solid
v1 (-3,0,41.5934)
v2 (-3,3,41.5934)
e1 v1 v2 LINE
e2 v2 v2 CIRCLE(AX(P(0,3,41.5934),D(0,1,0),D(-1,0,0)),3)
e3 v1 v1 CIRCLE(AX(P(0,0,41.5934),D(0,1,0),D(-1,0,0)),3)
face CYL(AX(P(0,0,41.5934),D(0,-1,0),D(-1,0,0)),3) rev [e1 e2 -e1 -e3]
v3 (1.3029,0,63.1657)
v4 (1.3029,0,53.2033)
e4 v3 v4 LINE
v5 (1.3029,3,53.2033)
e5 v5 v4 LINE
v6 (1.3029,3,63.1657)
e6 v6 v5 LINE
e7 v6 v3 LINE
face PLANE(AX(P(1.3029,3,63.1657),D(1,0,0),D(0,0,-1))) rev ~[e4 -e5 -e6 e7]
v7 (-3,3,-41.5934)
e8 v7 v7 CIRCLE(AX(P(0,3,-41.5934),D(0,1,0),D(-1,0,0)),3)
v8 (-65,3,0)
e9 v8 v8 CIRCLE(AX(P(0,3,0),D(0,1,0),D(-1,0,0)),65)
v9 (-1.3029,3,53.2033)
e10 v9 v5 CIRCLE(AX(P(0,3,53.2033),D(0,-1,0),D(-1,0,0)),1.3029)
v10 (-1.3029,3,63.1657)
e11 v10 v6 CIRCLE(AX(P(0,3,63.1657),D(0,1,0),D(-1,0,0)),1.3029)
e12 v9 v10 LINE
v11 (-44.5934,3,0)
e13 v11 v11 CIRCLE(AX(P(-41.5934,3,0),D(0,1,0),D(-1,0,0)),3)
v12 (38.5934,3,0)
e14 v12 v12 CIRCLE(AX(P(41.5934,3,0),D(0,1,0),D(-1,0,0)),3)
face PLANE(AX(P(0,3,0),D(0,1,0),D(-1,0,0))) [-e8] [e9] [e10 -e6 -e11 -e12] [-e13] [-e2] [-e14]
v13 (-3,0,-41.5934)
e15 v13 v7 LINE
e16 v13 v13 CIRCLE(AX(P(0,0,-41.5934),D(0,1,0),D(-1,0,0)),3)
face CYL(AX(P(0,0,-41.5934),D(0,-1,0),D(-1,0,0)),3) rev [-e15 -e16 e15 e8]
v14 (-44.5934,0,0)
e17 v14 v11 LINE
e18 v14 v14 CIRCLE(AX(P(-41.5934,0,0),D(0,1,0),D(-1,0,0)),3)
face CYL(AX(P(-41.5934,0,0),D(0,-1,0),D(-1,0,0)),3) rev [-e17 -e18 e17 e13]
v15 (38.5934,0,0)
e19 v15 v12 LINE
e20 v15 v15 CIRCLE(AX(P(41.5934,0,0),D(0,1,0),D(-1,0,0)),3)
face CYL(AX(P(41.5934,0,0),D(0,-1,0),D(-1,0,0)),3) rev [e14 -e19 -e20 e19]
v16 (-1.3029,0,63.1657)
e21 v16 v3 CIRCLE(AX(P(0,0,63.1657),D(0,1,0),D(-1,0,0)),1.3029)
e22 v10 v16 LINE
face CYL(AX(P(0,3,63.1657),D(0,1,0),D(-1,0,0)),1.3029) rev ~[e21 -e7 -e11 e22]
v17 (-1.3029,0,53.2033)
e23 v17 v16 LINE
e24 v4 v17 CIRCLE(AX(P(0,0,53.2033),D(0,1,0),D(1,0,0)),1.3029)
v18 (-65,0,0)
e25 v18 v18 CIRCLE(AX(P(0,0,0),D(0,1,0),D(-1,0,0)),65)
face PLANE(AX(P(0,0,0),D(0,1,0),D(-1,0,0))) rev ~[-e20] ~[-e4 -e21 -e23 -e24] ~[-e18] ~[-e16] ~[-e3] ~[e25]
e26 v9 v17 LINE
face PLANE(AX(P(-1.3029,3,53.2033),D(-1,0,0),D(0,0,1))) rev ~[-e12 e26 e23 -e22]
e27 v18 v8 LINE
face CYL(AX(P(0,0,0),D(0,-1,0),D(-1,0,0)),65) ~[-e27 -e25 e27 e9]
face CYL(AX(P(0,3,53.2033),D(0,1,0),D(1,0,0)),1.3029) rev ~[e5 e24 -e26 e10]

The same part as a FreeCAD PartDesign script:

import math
import FreeCAD as App
import Part
import Sketcher
Q = App.Units.Quantity

doc = App.newDocument("Part")
body = doc.addObject("PartDesign::Body", "Body")

sketch1 = body.newObject("Sketcher::SketchObject", "Sketch")
sketch1.AttachmentSupport = (doc.getObject("XZ_Plane"), [""])
sketch1.MapMode = "FlatFace"
sketch1.addGeometry(Part.Circle(App.Vector(0, 0, 0), App.Vector(0, 0, 1), 65), False)
sketch1.addGeometry(Part.Circle(App.Vector(0, -41.5934, 0), App.Vector(0, 0, 1), 3), False)
sketch1.addGeometry(Part.Circle(App.Vector(41.5934, 0, 0), App.Vector(0, 0, 1), 3), False)
sketch1.addGeometry(Part.Circle(App.Vector(-41.5934, 0, 0), App.Vector(0, 0, 1), 3), False)
sketch1.addGeometry(Part.Circle(App.Vector(0, 41.5934, 0), App.Vector(0, 0, 1), 3), False)
sketch1.addConstraint(Sketcher.Constraint("Coincident", 0, 3, -1, 1))
sketch1.addConstraint(Sketcher.Constraint("Equal", 1, 2))
sketch1.addConstraint(Sketcher.Constraint("Equal", 2, 3))
sketch1.addConstraint(Sketcher.Constraint("Equal", 3, 4))
sketch1.addConstraint(Sketcher.Constraint("Symmetric", 2, 3, 3, 3, -1, 1))
sketch1.addConstraint(Sketcher.Constraint("Symmetric", 1, 3, 4, 3, -1, 1))
sketch1.addConstraint(Sketcher.Constraint("PointOnObject", 1, 3, -2))
sketch1.addConstraint(Sketcher.Constraint("PointOnObject", 2, 3, -1))
sketch1.addConstraint(Sketcher.Constraint("Diameter", 0, Q("130 mm")))
sketch1.addConstraint(Sketcher.Constraint("Diameter", 1, Q("6 mm")))
sketch1.addConstraint(Sketcher.Constraint("DistanceY", 1, 3, -1, 1, Q("41.5934 mm")))
sketch1.addConstraint(Sketcher.Constraint("DistanceX", -1, 1, 2, 3, Q("41.5934 mm")))
pad1 = body.newObject("PartDesign::Pad", "Pad")
pad1.Profile = sketch1
pad1.Length = 3
pad1.Reversed = True

sketch2 = body.newObject("Sketcher::SketchObject", "Sketch001")
sketch2.AttachmentSupport = (doc.getObject("XZ_Plane"), [""])
sketch2.MapMode = "FlatFace"
sketch2.AttachmentOffset = App.Placement(App.Vector(0, 0, -3), App.Rotation())
sketch2.addGeometry(Part.ArcOfCircle(Part.Circle(App.Vector(0, 63.1657, 0), App.Vector(0, 0, 1), 1.3029), math.radians(0), math.radians(180)), False)
sketch2.addGeometry(Part.LineSegment(App.Vector(1.3029, 63.1657, 0), App.Vector(1.3029, 53.2033, 0)), False)
sketch2.addGeometry(Part.ArcOfCircle(Part.Circle(App.Vector(0, 53.2033, 0), App.Vector(0, 0, 1), 1.3029), math.radians(180), math.radians(360)), False)
sketch2.addGeometry(Part.LineSegment(App.Vector(-1.3029, 53.2033, 0), App.Vector(-1.3029, 63.1657, 0)), False)
sketch2.addConstraint(Sketcher.Constraint("Tangent", 0, 1, 1, 1))
sketch2.addConstraint(Sketcher.Constraint("Tangent", 1, 2, 2, 2))
sketch2.addConstraint(Sketcher.Constraint("Tangent", 2, 1, 3, 1))
sketch2.addConstraint(Sketcher.Constraint("Tangent", 3, 2, 0, 2))
sketch2.addConstraint(Sketcher.Constraint("Vertical", 1))
sketch2.addConstraint(Sketcher.Constraint("Vertical", 3))
sketch2.addConstraint(Sketcher.Constraint("PointOnObject", 0, 3, -2))
sketch2.addConstraint(Sketcher.Constraint("Radius", 0, Q("1.303 mm")))
sketch2.addConstraint(Sketcher.Constraint("DistanceY", 1, 2, 1, 1, Q("9.9624 mm")))
sketch2.addConstraint(Sketcher.Constraint("DistanceY", -1, 1, 0, 3, Q("63.1657 mm")))
pocket1 = body.newObject("PartDesign::Pocket", "Pocket")
pocket1.Profile = sketch2
pocket1.Length = 3
pocket1.Reversed = True

doc.recompute()
